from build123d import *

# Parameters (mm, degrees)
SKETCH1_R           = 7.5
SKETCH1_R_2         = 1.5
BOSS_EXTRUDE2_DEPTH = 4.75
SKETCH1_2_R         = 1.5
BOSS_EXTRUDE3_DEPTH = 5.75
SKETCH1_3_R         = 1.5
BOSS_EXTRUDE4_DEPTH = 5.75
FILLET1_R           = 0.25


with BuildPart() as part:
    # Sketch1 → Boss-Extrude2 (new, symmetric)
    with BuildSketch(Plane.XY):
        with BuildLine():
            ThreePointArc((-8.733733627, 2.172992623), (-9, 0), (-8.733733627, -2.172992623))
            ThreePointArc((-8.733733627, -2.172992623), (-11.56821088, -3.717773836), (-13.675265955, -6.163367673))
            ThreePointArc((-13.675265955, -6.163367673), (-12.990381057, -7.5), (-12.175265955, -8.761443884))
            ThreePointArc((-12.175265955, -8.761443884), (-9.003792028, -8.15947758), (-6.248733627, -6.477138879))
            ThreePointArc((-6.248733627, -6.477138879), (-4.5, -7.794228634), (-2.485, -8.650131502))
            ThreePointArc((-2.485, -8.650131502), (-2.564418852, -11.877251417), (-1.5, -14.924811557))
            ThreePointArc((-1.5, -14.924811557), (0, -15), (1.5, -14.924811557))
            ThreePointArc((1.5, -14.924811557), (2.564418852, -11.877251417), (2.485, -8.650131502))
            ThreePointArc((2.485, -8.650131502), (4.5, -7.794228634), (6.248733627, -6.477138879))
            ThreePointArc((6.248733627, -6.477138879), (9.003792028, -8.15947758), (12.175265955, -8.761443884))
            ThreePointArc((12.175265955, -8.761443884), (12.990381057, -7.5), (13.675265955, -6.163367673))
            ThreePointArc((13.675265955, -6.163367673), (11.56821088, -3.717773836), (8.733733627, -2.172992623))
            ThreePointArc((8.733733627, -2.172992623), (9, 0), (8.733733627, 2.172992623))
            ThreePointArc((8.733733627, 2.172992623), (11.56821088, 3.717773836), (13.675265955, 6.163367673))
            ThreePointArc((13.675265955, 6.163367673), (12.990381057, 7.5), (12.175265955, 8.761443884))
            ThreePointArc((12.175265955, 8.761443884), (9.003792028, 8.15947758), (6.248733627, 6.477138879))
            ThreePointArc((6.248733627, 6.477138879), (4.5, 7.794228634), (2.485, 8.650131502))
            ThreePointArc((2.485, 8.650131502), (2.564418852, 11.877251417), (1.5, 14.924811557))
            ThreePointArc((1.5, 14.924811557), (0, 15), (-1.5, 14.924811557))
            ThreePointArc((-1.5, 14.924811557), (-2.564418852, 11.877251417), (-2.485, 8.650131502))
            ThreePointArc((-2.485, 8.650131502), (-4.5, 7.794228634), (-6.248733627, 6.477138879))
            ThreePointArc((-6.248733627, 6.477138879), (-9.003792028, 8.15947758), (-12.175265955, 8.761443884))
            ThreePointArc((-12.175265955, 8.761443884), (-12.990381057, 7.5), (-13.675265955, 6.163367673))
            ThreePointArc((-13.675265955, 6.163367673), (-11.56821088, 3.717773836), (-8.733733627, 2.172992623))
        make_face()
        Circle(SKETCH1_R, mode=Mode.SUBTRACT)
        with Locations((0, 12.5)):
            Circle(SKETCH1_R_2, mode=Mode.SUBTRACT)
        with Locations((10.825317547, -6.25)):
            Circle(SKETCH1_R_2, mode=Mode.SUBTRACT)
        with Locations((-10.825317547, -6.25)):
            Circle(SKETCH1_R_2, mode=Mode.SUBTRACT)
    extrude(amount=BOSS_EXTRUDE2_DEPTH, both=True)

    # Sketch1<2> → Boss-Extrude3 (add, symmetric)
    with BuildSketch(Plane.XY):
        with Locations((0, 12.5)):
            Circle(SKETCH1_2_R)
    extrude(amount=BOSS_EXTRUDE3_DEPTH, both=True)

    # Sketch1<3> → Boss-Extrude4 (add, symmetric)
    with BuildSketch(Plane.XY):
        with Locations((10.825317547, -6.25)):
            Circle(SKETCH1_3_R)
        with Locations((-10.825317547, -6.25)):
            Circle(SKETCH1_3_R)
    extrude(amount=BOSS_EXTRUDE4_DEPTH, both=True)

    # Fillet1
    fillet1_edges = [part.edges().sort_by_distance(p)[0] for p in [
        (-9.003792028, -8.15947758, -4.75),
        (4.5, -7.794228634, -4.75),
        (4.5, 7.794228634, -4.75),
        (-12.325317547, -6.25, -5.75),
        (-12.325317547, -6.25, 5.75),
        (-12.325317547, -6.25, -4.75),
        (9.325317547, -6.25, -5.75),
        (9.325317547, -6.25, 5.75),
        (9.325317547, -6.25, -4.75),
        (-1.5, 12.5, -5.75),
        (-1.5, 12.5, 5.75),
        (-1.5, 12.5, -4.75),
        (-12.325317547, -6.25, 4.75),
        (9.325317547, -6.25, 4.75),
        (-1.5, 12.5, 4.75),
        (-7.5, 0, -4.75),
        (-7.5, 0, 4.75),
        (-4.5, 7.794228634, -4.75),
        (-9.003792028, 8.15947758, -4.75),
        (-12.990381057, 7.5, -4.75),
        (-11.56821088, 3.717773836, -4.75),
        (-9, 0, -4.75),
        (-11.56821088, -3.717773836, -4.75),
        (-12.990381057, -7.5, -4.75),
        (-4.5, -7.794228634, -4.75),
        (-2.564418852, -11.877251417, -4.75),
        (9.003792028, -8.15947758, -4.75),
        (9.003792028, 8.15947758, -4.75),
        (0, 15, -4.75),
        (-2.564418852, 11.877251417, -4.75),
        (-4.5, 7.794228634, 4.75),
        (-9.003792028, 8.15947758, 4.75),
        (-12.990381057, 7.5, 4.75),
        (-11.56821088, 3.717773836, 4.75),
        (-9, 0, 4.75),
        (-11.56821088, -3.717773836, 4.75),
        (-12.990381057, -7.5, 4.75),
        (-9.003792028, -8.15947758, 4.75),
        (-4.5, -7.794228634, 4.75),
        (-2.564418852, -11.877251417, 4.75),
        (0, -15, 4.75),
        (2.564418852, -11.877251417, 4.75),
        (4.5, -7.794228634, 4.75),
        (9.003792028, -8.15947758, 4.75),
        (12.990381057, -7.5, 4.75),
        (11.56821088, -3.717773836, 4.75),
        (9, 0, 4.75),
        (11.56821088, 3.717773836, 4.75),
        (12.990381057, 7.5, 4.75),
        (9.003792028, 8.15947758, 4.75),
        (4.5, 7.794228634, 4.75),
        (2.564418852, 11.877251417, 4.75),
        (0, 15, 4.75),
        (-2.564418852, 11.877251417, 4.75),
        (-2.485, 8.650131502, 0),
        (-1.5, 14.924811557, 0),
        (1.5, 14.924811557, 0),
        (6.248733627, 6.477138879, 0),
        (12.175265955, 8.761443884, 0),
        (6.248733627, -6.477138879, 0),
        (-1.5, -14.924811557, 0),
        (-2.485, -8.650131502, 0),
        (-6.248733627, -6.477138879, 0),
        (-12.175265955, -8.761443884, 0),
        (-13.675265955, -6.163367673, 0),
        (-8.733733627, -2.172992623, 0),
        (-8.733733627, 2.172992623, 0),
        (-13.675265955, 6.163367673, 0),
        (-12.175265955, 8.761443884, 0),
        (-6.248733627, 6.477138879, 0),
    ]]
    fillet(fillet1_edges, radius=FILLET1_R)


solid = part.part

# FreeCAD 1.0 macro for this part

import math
import FreeCAD as App
import Part
import Sketcher


def edges_at(feature, points):
    """Names of the edges that pass closest to the given points."""
    edges = feature.Shape.Edges
    near = lambda p: min(range(len(edges)), key=lambda i: edges[i].distToShape(Part.Vertex(*p))[0])
    return sorted({f"Edge{near(p) + 1}" for p in points})

doc = App.newDocument("Part")
params = doc.addObject("Spreadsheet::Sheet", "Params")
for row, (alias, value) in enumerate([
    ("sketch1_diameter", "3 mm"),
    ("sketch1_diameter2", "15 mm"),
    ("sketch1_radius", "9 mm"),
    ("sketch1_radius2", "15 mm"),
    ("pad1_length", "9.5 mm"),
    ("sketch2_diameter", "3 mm"),
    ("pad2_length", "11.5 mm"),
    ("sketch3_diameter", "3 mm"),
    ("pad3_length", "11.5 mm"),
    ("fillet_radius", "0.25 mm"),
], start=1):
    params.set(f"A{row}", alias)
    params.set(f"B{row}", "=" + value)
    params.setAlias(f"B{row}", alias)

body = doc.addObject("PartDesign::Body", "Body")

# Sketch on XY plane
sketch1 = body.newObject("Sketcher::SketchObject", "Sketch")
sketch1.AttachmentSupport = (doc.getObject("XY_Plane"), [""])
sketch1.MapMode = "FlatFace"
sketch1.addGeometry(Part.ArcOfCircle(Part.Circle(App.Vector(0, 0, 0), App.Vector(0, 0, 1), 9), math.radians(166.02824), math.radians(193.97176)), False)
sketch1.addGeometry(Part.ArcOfCircle(Part.Circle(App.Vector(-5.913917, -10.719842, 0), App.Vector(0, 0, 1), 9), math.radians(108.259001), math.radians(149.583979)), False)
sketch1.addGeometry(Part.ArcOfCircle(Part.Circle(App.Vector(0, 0, 0), App.Vector(0, 0, 1), 15), math.radians(-155.73917), math.radians(-144.26083)), False)
sketch1.addGeometry(Part.ArcOfCircle(Part.Circle(App.Vector(-12.240614, 0.238319, 0), App.Vector(0, 0, 1), 9), math.radians(-89.583979), math.radians(-48.259001)), False)
sketch1.addGeometry(Part.ArcOfCircle(Part.Circle(App.Vector(0, 0, 0), App.Vector(0, 0, 1), 9), math.radians(-133.97176), math.radians(-106.02824)), False)
sketch1.addGeometry(Part.ArcOfCircle(Part.Circle(App.Vector(6.326697, -10.481523, 0), App.Vector(0, 0, 1), 9), math.radians(168.259001), math.radians(209.583979)), False)
sketch1.addGeometry(Part.ArcOfCircle(Part.Circle(App.Vector(0, 0, 0), App.Vector(0, 0, 1), 15), math.radians(-95.73917), math.radians(-84.26083)), False)
sketch1.addGeometry(Part.ArcOfCircle(Part.Circle(App.Vector(-6.326697, -10.481523, 0), App.Vector(0, 0, 1), 9), math.radians(-29.583979), math.radians(11.740999)), False)
sketch1.addGeometry(Part.ArcOfCircle(Part.Circle(App.Vector(0, 0, 0), App.Vector(0, 0, 1), 9), math.radians(-73.97176), math.radians(-46.02824)), False)
sketch1.addGeometry(Part.ArcOfCircle(Part.Circle(App.Vector(12.240614, 0.238319, 0), App.Vector(0, 0, 1), 9), math.radians(-131.740999), math.radians(-90.416021)), False)
sketch1.addGeometry(Part.ArcOfCircle(Part.Circle(App.Vector(0, 0, 0), App.Vector(0, 0, 1), 15), math.radians(-35.73917), math.radians(-24.26083)), False)
sketch1.addGeometry(Part.ArcOfCircle(Part.Circle(App.Vector(5.913917, -10.719842, 0), App.Vector(0, 0, 1), 9), math.radians(30.416021), math.radians(71.740999)), False)
sketch1.addGeometry(Part.ArcOfCircle(Part.Circle(App.Vector(0, 0, 0), App.Vector(0, 0, 1), 9), math.radians(-13.97176), math.radians(13.97176)), False)
sketch1.addGeometry(Part.ArcOfCircle(Part.Circle(App.Vector(5.913917, 10.719842, 0), App.Vector(0, 0, 1), 9), math.radians(-71.740999), math.radians(-30.416021)), False)
sketch1.addGeometry(Part.ArcOfCircle(Part.Circle(App.Vector(0, 0, 0), App.Vector(0, 0, 1), 15), math.radians(24.26083), math.radians(35.73917)), False)
sketch1.addGeometry(Part.ArcOfCircle(Part.Circle(App.Vector(12.240614, -0.238319, 0), App.Vector(0, 0, 1), 9), math.radians(90.416021), math.radians(131.740999)), False)
sketch1.addGeometry(Part.ArcOfCircle(Part.Circle(App.Vector(0, 0, 0), App.Vector(0, 0, 1), 9), math.radians(46.02824), math.radians(73.97176)), False)
sketch1.addGeometry(Part.ArcOfCircle(Part.Circle(App.Vector(-6.326697, 10.481523, 0), App.Vector(0, 0, 1), 9), math.radians(-11.740999), math.radians(29.583979)), False)
sketch1.addGeometry(Part.ArcOfCircle(Part.Circle(App.Vector(0, 0, 0), App.Vector(0, 0, 1), 15), math.radians(84.26083), math.radians(95.73917)), False)
sketch1.addGeometry(Part.ArcOfCircle(Part.Circle(App.Vector(6.326697, 10.481523, 0), App.Vector(0, 0, 1), 9), math.radians(150.416021), math.radians(191.740999)), False)
sketch1.addGeometry(Part.ArcOfCircle(Part.Circle(App.Vector(0, 0, 0), App.Vector(0, 0, 1), 9), math.radians(106.02824), math.radians(133.97176)), False)
sketch1.addGeometry(Part.ArcOfCircle(Part.Circle(App.Vector(-12.240614, -0.238319, 0), App.Vector(0, 0, 1), 9), math.radians(48.259001), math.radians(89.583979)), False)
sketch1.addGeometry(Part.ArcOfCircle(Part.Circle(App.Vector(0, 0, 0), App.Vector(0, 0, 1), 15), math.radians(144.26083), math.radians(155.73917)), False)
sketch1.addGeometry(Part.ArcOfCircle(Part.Circle(App.Vector(-5.913917, 10.719842, 0), App.Vector(0, 0, 1), 9), math.radians(-149.583979), math.radians(-108.259001)), False)
sketch1.addGeometry(Part.Circle(App.Vector(-10.825318, -6.25, 0), App.Vector(0, 0, 1), 1.5), False)
sketch1.addGeometry(Part.Circle(App.Vector(10.825318, -6.25, 0), App.Vector(0, 0, 1), 1.5), False)
sketch1.addGeometry(Part.Circle(App.Vector(0, 0, 0), App.Vector(0, 0, 1), 7.5), False)
sketch1.addGeometry(Part.Circle(App.Vector(0, 12.5, 0), App.Vector(0, 0, 1), 1.5), False)
sketch1.addConstraint(Sketcher.Constraint("Coincident", 0, 2, 1, 1))
sketch1.addConstraint(Sketcher.Constraint("Coincident", 1, 2, 2, 1))
sketch1.addConstraint(Sketcher.Constraint("Coincident", 2, 2, 3, 1))
sketch1.addConstraint(Sketcher.Constraint("Coincident", 3, 2, 4, 1))
sketch1.addConstraint(Sketcher.Constraint("Coincident", 4, 2, 5, 1))
sketch1.addConstraint(Sketcher.Constraint("Coincident", 5, 2, 6, 1))
sketch1.addConstraint(Sketcher.Constraint("Coincident", 6, 2, 7, 1))
sketch1.addConstraint(Sketcher.Constraint("Coincident", 7, 2, 8, 1))
sketch1.addConstraint(Sketcher.Constraint("Coincident", 8, 2, 9, 1))
sketch1.addConstraint(Sketcher.Constraint("Coincident", 9, 2, 10, 1))
sketch1.addConstraint(Sketcher.Constraint("Coincident", 10, 2, 11, 1))
sketch1.addConstraint(Sketcher.Constraint("Coincident", 11, 2, 12, 1))
sketch1.addConstraint(Sketcher.Constraint("Coincident", 12, 2, 13, 1))
sketch1.addConstraint(Sketcher.Constraint("Coincident", 13, 2, 14, 1))
sketch1.addConstraint(Sketcher.Constraint("Coincident", 14, 2, 15, 1))
sketch1.addConstraint(Sketcher.Constraint("Coincident", 15, 2, 16, 1))
sketch1.addConstraint(Sketcher.Constraint("Coincident", 16, 2, 17, 1))
sketch1.addConstraint(Sketcher.Constraint("Coincident", 17, 2, 18, 1))
sketch1.addConstraint(Sketcher.Constraint("Coincident", 18, 2, 19, 1))
sketch1.addConstraint(Sketcher.Constraint("Coincident", 19, 2, 20, 1))
sketch1.addConstraint(Sketcher.Constraint("Coincident", 20, 2, 21, 1))
sketch1.addConstraint(Sketcher.Constraint("Coincident", 21, 2, 22, 1))
sketch1.addConstraint(Sketcher.Constraint("Coincident", 22, 2, 23, 1))
sketch1.addConstraint(Sketcher.Constraint("Coincident", 23, 2, 0, 1))
sketch1.addConstraint(Sketcher.Constraint("Coincident", 0, 3, -1, 1))
sketch1.addConstraint(Sketcher.Constraint("Coincident", 2, 3, -1, 1))
sketch1.addConstraint(Sketcher.Constraint("Coincident", 4, 3, -1, 1))
sketch1.addConstraint(Sketcher.Constraint("Coincident", 6, 3, -1, 1))
sketch1.addConstraint(Sketcher.Constraint("Coincident", 8, 3, -1, 1))
sketch1.addConstraint(Sketcher.Constraint("Coincident", 10, 3, -1, 1))
sketch1.addConstraint(Sketcher.Constraint("Coincident", 12, 3, -1, 1))
sketch1.addConstraint(Sketcher.Constraint("Coincident", 14, 3, -1, 1))
sketch1.addConstraint(Sketcher.Constraint("Coincident", 16, 3, -1, 1))
sketch1.addConstraint(Sketcher.Constraint("Coincident", 18, 3, -1, 1))
sketch1.addConstraint(Sketcher.Constraint("Coincident", 20, 3, -1, 1))
sketch1.addConstraint(Sketcher.Constraint("Coincident", 22, 3, -1, 1))
sketch1.addConstraint(Sketcher.Constraint("Coincident", 26, 3, -1, 1))
sketch1.addConstraint(Sketcher.Constraint("Equal", 0, 1))
sketch1.addConstraint(Sketcher.Constraint("Equal", 1, 3))
sketch1.addConstraint(Sketcher.Constraint("Equal", 3, 4))
sketch1.addConstraint(Sketcher.Constraint("Equal", 4, 5))
sketch1.addConstraint(Sketcher.Constraint("Equal", 2, 6))
sketch1.addConstraint(Sketcher.Constraint("Equal", 5, 7))
sketch1.addConstraint(Sketcher.Constraint("Equal", 7, 8))
sketch1.addConstraint(Sketcher.Constraint("Equal", 8, 9))
sketch1.addConstraint(Sketcher.Constraint("Equal", 6, 10))
sketch1.addConstraint(Sketcher.Constraint("Equal", 9, 11))
sketch1.addConstraint(Sketcher.Constraint("Equal", 11, 12))
sketch1.addConstraint(Sketcher.Constraint("Equal", 12, 13))
sketch1.addConstraint(Sketcher.Constraint("Equal", 10, 14))
sketch1.addConstraint(Sketcher.Constraint("Equal", 13, 15))
sketch1.addConstraint(Sketcher.Constraint("Equal", 15, 16))
sketch1.addConstraint(Sketcher.Constraint("Equal", 16, 17))
sketch1.addConstraint(Sketcher.Constraint("Equal", 14, 18))
sketch1.addConstraint(Sketcher.Constraint("Equal", 17, 19))
sketch1.addConstraint(Sketcher.Constraint("Equal", 19, 20))
sketch1.addConstraint(Sketcher.Constraint("Equal", 20, 21))
sketch1.addConstraint(Sketcher.Constraint("Equal", 18, 22))
sketch1.addConstraint(Sketcher.Constraint("Equal", 21, 23))
sketch1.addConstraint(Sketcher.Constraint("Equal", 24, 25))
sketch1.addConstraint(Sketcher.Constraint("Equal", 25, 27))
sketch1.addConstraint(Sketcher.Constraint("Symmetric", 1, 3, 13, 3, -1, 1))
sketch1.addConstraint(Sketcher.Constraint("Symmetric", 3, 3, 15, 3, -1, 1))
sketch1.addConstraint(Sketcher.Constraint("Symmetric", 5, 3, 17, 3, -1, 1))
sketch1.addConstraint(Sketcher.Constraint("Symmetric", 7, 3, 19, 3, -1, 1))
sketch1.addConstraint(Sketcher.Constraint("Symmetric", 9, 3, 21, 3, -1, 1))
sketch1.addConstraint(Sketcher.Constraint("Symmetric", 11, 3, 23, 3, -1, 1))
sketch1.addConstraint(Sketcher.Constraint("Symmetric", 5, 3, 7, 3, -2))
sketch1.addConstraint(Sketcher.Constraint("Symmetric", 3, 3, 9, 3, -2))
sketch1.addConstraint(Sketcher.Constraint("Symmetric", 1, 3, 11, 3, -2))
sketch1.addConstraint(Sketcher.Constraint("Symmetric", 24, 3, 25, 3, -2))
sketch1.addConstraint(Sketcher.Constraint("PointOnObject", 27, 3, -2))
sketch1.addConstraint(Sketcher.Constraint("Diameter", 24, 3.0))
sketch1.addConstraint(Sketcher.Constraint("Diameter", 26, 15.0))
sketch1.addConstraint(Sketcher.Constraint("Radius", 0, 9.0))
sketch1.addConstraint(Sketcher.Constraint("Radius", 2, 15.0))
sketch1.addConstraint(Sketcher.Constraint("DistanceX", 5, 2, 6, 2, 3.0))
sketch1.addConstraint(Sketcher.Constraint("DistanceY", -1, 1, 27, 3, 12.5))
sketch1.addConstraint(Sketcher.Constraint("DistanceX", 1, 2, 2, 2, 1.5))
sketch1.addConstraint(Sketcher.Constraint("DistanceY", 24, 3, -1, 1, 6.25))
sketch1.addConstraint(Sketcher.Constraint("DistanceX", 4, 2, 7, 2, 4.97))
sketch1.addConstraint(Sketcher.Constraint("DistanceX", 0, 2, 3, 2, 2.485))
sketch1.addConstraint(Sketcher.Constraint("DistanceX", 24, 3, 1, 3, 4.911401))
sketch1.addConstraint(Sketcher.Constraint("DistanceY", 1, 3, -1, 1, 10.719842))
sketch1.addConstraint(Sketcher.Constraint("DistanceY", -1, 1, 3, 3, 0.238319))
sketch1.setExpression("Constraints[72]", "Params.sketch1_diameter")
sketch1.setExpression("Constraints[73]", "Params.sketch1_diameter2")
sketch1.setExpression("Constraints[74]", "Params.sketch1_radius")
sketch1.setExpression("Constraints[75]", "Params.sketch1_radius2")
pad1 = body.newObject("PartDesign::Pad", "Pad")
pad1.Profile = sketch1
pad1.setExpression("Length", "Params.pad1_length")
pad1.Midplane = True

# Sketch on XY plane
sketch2 = body.newObject("Sketcher::SketchObject", "Sketch001")
sketch2.AttachmentSupport = (doc.getObject("XY_Plane"), [""])
sketch2.MapMode = "FlatFace"
sketch2.addGeometry(Part.Circle(App.Vector(0, 12.5, 0), App.Vector(0, 0, 1), 1.5), False)
sketch2.addConstraint(Sketcher.Constraint("PointOnObject", 0, 3, -2))
sketch2.addConstraint(Sketcher.Constraint("Diameter", 0, 3.0))
sketch2.addConstraint(Sketcher.Constraint("DistanceY", -1, 1, 0, 3, 12.5))
sketch2.setExpression("Constraints[1]", "Params.sketch2_diameter")
pad2 = body.newObject("PartDesign::Pad", "Pad001")
pad2.Profile = sketch2
pad2.setExpression("Length", "Params.pad2_length")
pad2.Midplane = True

# Sketch on XY plane
sketch3 = body.newObject("Sketcher::SketchObject", "Sketch002")
sketch3.AttachmentSupport = (doc.getObject("XY_Plane"), [""])
sketch3.MapMode = "FlatFace"
sketch3.addGeometry(Part.Circle(App.Vector(10.825318, -6.25, 0), App.Vector(0, 0, 1), 1.5), False)
sketch3.addGeometry(Part.Circle(App.Vector(-10.825318, -6.25, 0), App.Vector(0, 0, 1), 1.5), False)
sketch3.addConstraint(Sketcher.Constraint("Equal", 0, 1))
sketch3.addConstraint(Sketcher.Constraint("Symmetric", 0, 3, 1, 3, -2))
sketch3.addConstraint(Sketcher.Constraint("Diameter", 0, 3.0))
sketch3.addConstraint(Sketcher.Constraint("DistanceY", 0, 3, -1, 1, 6.25))
sketch3.addConstraint(Sketcher.Constraint("DistanceX", -1, 1, 0, 3, 10.825318))
sketch3.setExpression("Constraints[2]", "Params.sketch3_diameter")
pad3 = body.newObject("PartDesign::Pad", "Pad002")
pad3.Profile = sketch3
pad3.setExpression("Length", "Params.pad3_length")
pad3.Midplane = True
doc.recompute()

fillet = body.newObject("PartDesign::Fillet", "Fillet")
fillet.Base = (pad3, edges_at(pad3, [
    (-9.004, -8.159, -4.75),
    (4.5, -7.794, -4.75),
    (4.5, 7.794, -4.75),
    (-12.325, -6.25, -5.75),
    (-12.325, -6.25, 5.75),
    (-12.325, -6.25, -4.75),
    (9.325, -6.25, -5.75),
    (9.325, -6.25, 5.75),
    (9.325, -6.25, -4.75),
    (-1.5, 12.5, -5.75),
    (-1.5, 12.5, 5.75),
    (-1.5, 12.5, -4.75),
    (-12.325, -6.25, 4.75),
    (9.325, -6.25, 4.75),
    (-1.5, 12.5, 4.75),
    (-7.5, 0, -4.75),
    (-7.5, 0, 4.75),
    (-4.5, 7.794, -4.75),
    (-9.004, 8.159, -4.75),
    (-12.99, 7.5, -4.75),
    (-11.568, 3.718, -4.75),
    (-9, 0, -4.75),
    (-11.568, -3.718, -4.75),
    (-12.99, -7.5, -4.75),
    (-4.5, -7.794, -4.75),
    (-2.564, -11.877, -4.75),
    (9.004, -8.159, -4.75),
    (9.004, 8.159, -4.75),
    (0, 15, -4.75),
    (-2.564, 11.877, -4.75),
    (-4.5, 7.794, 4.75),
    (-9.004, 8.159, 4.75),
    (-12.99, 7.5, 4.75),
    (-11.568, 3.718, 4.75),
    (-9, 0, 4.75),
    (-11.568, -3.718, 4.75),
    (-12.99, -7.5, 4.75),
    (-9.004, -8.159, 4.75),
    (-4.5, -7.794, 4.75),
    (-2.564, -11.877, 4.75),
    (0, -15, 4.75),
    (2.564, -11.877, 4.75),
    (4.5, -7.794, 4.75),
    (9.004, -8.159, 4.75),
    (12.99, -7.5, 4.75),
    (11.568, -3.718, 4.75),
    (9, 0, 4.75),
    (11.568, 3.718, 4.75),
    (12.99, 7.5, 4.75),
    (9.004, 8.159, 4.75),
    (4.5, 7.794, 4.75),
    (2.564, 11.877, 4.75),
    (0, 15, 4.75),
    (-2.564, 11.877, 4.75),
    (-2.485, 8.65, 0),
    (-1.5, 14.925, 0),
    (1.5, 14.925, 0),
    (6.249, 6.477, 0),
    (12.175, 8.761, 0),
    (6.249, -6.477, 0),
    (-1.5, -14.925, 0),
    (-2.485, -8.65, 0),
    (-6.249, -6.477, 0),
    (-12.175, -8.761, 0),
    (-13.675, -6.163, 0),
    (-8.734, -2.173, 0),
    (-8.734, 2.173, 0),
    (-13.675, 6.163, 0),
    (-12.175, 8.761, 0),
    (-6.249, 6.477, 0),
]))
fillet.setExpression("Radius", "Params.fillet_radius")

doc.recompute()
